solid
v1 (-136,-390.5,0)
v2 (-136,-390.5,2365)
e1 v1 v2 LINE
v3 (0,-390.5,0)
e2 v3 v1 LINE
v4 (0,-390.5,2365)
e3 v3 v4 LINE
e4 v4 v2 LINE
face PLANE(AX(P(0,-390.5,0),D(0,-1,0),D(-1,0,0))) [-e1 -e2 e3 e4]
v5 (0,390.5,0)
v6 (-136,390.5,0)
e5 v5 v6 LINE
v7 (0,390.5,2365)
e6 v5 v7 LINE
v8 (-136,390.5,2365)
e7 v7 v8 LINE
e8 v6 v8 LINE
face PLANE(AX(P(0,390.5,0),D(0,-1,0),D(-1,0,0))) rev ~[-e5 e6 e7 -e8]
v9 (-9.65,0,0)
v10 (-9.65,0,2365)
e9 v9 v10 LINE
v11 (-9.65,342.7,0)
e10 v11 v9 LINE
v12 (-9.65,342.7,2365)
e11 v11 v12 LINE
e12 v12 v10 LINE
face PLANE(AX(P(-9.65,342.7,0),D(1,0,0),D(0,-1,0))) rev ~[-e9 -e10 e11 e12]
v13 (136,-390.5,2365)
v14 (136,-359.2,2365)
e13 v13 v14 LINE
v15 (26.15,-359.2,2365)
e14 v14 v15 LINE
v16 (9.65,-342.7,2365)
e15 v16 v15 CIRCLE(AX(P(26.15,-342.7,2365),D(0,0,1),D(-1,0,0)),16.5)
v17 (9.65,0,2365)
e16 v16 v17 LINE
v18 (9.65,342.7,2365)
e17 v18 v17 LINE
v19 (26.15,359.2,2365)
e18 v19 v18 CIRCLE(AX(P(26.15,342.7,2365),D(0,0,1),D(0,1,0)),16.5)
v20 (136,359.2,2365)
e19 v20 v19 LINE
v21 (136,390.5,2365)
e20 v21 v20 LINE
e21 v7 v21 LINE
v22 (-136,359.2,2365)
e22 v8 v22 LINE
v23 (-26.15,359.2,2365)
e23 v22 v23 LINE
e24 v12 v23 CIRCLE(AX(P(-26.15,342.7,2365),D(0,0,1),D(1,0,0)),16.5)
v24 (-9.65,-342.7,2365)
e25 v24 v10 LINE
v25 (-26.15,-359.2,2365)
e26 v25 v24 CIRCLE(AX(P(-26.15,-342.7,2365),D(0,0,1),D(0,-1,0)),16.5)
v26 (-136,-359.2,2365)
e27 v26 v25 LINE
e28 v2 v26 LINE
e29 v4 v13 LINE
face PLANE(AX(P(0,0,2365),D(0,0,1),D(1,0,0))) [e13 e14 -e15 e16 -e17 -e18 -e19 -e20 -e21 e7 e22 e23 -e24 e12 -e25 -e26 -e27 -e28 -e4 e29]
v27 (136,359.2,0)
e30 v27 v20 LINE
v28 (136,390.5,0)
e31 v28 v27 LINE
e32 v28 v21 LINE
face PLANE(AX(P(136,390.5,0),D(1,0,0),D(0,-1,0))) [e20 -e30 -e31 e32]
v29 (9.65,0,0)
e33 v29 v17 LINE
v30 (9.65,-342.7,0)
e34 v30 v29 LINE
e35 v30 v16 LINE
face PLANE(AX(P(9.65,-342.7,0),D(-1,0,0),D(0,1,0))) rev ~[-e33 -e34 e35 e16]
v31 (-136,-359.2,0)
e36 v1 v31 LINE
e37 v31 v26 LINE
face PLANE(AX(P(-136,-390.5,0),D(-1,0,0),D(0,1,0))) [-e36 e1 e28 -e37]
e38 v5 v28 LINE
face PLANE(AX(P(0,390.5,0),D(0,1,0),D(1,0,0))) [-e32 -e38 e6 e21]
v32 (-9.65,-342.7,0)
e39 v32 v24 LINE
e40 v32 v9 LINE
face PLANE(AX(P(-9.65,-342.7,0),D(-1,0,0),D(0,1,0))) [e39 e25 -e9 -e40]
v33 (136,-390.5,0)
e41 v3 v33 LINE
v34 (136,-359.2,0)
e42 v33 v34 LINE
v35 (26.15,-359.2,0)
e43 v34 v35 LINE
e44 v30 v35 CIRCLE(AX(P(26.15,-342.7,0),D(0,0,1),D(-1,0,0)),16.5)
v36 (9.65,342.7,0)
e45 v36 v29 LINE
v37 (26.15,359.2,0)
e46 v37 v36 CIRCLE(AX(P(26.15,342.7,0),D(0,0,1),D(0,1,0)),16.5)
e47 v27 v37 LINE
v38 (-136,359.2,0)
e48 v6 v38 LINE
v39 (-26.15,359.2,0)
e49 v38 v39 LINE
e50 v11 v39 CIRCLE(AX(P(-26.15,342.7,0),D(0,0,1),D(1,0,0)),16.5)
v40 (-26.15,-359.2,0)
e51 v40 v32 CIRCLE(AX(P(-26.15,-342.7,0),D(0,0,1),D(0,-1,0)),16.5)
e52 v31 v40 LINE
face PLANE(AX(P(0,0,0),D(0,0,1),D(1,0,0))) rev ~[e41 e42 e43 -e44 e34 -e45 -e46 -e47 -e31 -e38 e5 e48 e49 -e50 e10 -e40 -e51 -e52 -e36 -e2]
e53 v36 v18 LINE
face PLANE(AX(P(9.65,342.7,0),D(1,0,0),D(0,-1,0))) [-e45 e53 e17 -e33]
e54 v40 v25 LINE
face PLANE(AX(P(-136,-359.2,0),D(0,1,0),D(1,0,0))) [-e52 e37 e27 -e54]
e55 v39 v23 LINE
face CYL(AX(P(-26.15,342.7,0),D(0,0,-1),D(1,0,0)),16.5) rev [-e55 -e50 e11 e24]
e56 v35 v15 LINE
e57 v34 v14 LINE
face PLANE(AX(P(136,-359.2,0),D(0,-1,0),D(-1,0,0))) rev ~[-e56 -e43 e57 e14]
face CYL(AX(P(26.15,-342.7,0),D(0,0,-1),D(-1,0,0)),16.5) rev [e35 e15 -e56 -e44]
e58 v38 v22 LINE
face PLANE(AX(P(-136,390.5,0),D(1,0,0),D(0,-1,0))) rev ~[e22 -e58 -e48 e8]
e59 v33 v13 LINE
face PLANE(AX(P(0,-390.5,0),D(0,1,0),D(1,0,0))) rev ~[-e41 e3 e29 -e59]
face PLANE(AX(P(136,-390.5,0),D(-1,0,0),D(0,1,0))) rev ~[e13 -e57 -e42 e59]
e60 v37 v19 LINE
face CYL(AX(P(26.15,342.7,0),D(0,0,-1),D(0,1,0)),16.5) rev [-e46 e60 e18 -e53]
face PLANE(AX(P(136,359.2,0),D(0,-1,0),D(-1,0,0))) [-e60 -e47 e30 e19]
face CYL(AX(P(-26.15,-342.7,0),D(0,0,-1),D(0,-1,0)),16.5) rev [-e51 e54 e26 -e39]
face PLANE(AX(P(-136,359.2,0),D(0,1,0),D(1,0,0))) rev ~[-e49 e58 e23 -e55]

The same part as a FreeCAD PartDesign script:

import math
import FreeCAD as App
import Part
import Sketcher
Q = App.Units.Quantity

doc = App.newDocument("Part")
body = doc.addObject("PartDesign::Body", "Body")

# Sketch on XY plane
sketch1 = body.newObject("Sketcher::SketchObject", "Sketch")
sketch1.AttachmentSupport = (doc.getObject("XY_Plane"), [""])
sketch1.MapMode = "FlatFace"
sketch1.addGeometry([
    Part.LineSegment(App.Vector(-136, -359, 0), App.Vector(-136, -390, 0)),  # 0
    Part.LineSegment(App.Vector(-136, -390, 0), App.Vector(136, -390, 0)),  # 1
    Part.LineSegment(App.Vector(136, -390, 0), App.Vector(136, -359, 0)),  # 2
    Part.LineSegment(App.Vector(136, -359, 0), App.Vector(26, -359, 0)),  # 3
    Part.ArcOfCircle(Part.Circle(App.Vector(26, -343, 0), App.Vector(0, 0, 1), 16), math.radians(180), math.radians(270)),  # 4
    Part.LineSegment(App.Vector(10, -343, 0), App.Vector(10, 343, 0)),  # 5
    Part.ArcOfCircle(Part.Circle(App.Vector(26, 343, 0), App.Vector(0, 0, 1), 16), math.radians(90), math.radians(180)),  # 6
    Part.LineSegment(App.Vector(26, 359, 0), App.Vector(136, 359, 0)),  # 7
    Part.LineSegment(App.Vector(136, 359, 0), App.Vector(136, 390, 0)),  # 8
    Part.LineSegment(App.Vector(136, 390, 0), App.Vector(-136, 390, 0)),  # 9
    Part.LineSegment(App.Vector(-136, 390, 0), App.Vector(-136, 359, 0)),  # 10
    Part.LineSegment(App.Vector(-136, 359, 0), App.Vector(-26, 359, 0)),  # 11
    Part.ArcOfCircle(Part.Circle(App.Vector(-26, 343, 0), App.Vector(0, 0, 1), 16), math.radians(0), math.radians(90)),  # 12
    Part.LineSegment(App.Vector(-10, 343, 0), App.Vector(-10, -343, 0)),  # 13
    Part.ArcOfCircle(Part.Circle(App.Vector(-26, -343, 0), App.Vector(0, 0, 1), 16), math.radians(-90), math.radians(0)),  # 14
    Part.LineSegment(App.Vector(-26, -359, 0), App.Vector(-136, -359, 0)),  # 15
], False)
sketch1.addConstraint([
    Sketcher.Constraint("Coincident", 0, 2, 1, 1),
    Sketcher.Constraint("Coincident", 1, 2, 2, 1),
    Sketcher.Constraint("Coincident", 2, 2, 3, 1),
    Sketcher.Constraint("Tangent", 3, 2, 4, 2),
    Sketcher.Constraint("Tangent", 4, 1, 5, 1),
    Sketcher.Constraint("Tangent", 5, 2, 6, 2),
    Sketcher.Constraint("Tangent", 6, 1, 7, 1),
    Sketcher.Constraint("Coincident", 7, 2, 8, 1),
    Sketcher.Constraint("Coincident", 8, 2, 9, 1),
    Sketcher.Constraint("Coincident", 9, 2, 10, 1),
    Sketcher.Constraint("Coincident", 10, 2, 11, 1),
    Sketcher.Constraint("Tangent", 11, 2, 12, 2),
    Sketcher.Constraint("Tangent", 12, 1, 13, 1),
    Sketcher.Constraint("Tangent", 13, 2, 14, 2),
    Sketcher.Constraint("Tangent", 14, 1, 15, 1),
    Sketcher.Constraint("Coincident", 15, 2, 0, 1),
    Sketcher.Constraint("Vertical", 0),
    Sketcher.Constraint("Horizontal", 1),
    Sketcher.Constraint("Vertical", 2),
    Sketcher.Constraint("Horizontal", 3),
    Sketcher.Constraint("Vertical", 5),
    Sketcher.Constraint("Horizontal", 7),
    Sketcher.Constraint("Vertical", 8),
    Sketcher.Constraint("Horizontal", 9),
    Sketcher.Constraint("Vertical", 10),
    Sketcher.Constraint("Horizontal", 11),
    Sketcher.Constraint("Vertical", 13),
    Sketcher.Constraint("Horizontal", 15),
    Sketcher.Constraint("Equal", 4, 6),
    Sketcher.Constraint("Equal", 6, 12),
    Sketcher.Constraint("Equal", 12, 14),
    Sketcher.Constraint("Symmetric", 4, 3, 12, 3, -1, 1),
    Sketcher.Constraint("Symmetric", 0, 2, 8, 2, -1, 1),
    Sketcher.Constraint("Symmetric", 7, 2, 10, 2, -2),
    Sketcher.Constraint("Symmetric", 2, 2, 15, 2, -2),
    Sketcher.Constraint("Radius", 4, Q("16.5 mm")),
    Sketcher.Constraint("DistanceY", 0, 2, 0, 1, Q("31.3 mm")),
    Sketcher.Constraint("DistanceX", 0, 2, -1, 1, Q("136 mm")),
    Sketcher.Constraint("DistanceY", 0, 2, -1, 1, Q("390.5 mm")),
    Sketcher.Constraint("DistanceX", -1, 1, 4, 1, Q("9.65 mm")),
])
pad1 = body.newObject("PartDesign::Pad", "Pad")
pad1.Profile = sketch1
pad1.Length = 2365

doc.recompute()
